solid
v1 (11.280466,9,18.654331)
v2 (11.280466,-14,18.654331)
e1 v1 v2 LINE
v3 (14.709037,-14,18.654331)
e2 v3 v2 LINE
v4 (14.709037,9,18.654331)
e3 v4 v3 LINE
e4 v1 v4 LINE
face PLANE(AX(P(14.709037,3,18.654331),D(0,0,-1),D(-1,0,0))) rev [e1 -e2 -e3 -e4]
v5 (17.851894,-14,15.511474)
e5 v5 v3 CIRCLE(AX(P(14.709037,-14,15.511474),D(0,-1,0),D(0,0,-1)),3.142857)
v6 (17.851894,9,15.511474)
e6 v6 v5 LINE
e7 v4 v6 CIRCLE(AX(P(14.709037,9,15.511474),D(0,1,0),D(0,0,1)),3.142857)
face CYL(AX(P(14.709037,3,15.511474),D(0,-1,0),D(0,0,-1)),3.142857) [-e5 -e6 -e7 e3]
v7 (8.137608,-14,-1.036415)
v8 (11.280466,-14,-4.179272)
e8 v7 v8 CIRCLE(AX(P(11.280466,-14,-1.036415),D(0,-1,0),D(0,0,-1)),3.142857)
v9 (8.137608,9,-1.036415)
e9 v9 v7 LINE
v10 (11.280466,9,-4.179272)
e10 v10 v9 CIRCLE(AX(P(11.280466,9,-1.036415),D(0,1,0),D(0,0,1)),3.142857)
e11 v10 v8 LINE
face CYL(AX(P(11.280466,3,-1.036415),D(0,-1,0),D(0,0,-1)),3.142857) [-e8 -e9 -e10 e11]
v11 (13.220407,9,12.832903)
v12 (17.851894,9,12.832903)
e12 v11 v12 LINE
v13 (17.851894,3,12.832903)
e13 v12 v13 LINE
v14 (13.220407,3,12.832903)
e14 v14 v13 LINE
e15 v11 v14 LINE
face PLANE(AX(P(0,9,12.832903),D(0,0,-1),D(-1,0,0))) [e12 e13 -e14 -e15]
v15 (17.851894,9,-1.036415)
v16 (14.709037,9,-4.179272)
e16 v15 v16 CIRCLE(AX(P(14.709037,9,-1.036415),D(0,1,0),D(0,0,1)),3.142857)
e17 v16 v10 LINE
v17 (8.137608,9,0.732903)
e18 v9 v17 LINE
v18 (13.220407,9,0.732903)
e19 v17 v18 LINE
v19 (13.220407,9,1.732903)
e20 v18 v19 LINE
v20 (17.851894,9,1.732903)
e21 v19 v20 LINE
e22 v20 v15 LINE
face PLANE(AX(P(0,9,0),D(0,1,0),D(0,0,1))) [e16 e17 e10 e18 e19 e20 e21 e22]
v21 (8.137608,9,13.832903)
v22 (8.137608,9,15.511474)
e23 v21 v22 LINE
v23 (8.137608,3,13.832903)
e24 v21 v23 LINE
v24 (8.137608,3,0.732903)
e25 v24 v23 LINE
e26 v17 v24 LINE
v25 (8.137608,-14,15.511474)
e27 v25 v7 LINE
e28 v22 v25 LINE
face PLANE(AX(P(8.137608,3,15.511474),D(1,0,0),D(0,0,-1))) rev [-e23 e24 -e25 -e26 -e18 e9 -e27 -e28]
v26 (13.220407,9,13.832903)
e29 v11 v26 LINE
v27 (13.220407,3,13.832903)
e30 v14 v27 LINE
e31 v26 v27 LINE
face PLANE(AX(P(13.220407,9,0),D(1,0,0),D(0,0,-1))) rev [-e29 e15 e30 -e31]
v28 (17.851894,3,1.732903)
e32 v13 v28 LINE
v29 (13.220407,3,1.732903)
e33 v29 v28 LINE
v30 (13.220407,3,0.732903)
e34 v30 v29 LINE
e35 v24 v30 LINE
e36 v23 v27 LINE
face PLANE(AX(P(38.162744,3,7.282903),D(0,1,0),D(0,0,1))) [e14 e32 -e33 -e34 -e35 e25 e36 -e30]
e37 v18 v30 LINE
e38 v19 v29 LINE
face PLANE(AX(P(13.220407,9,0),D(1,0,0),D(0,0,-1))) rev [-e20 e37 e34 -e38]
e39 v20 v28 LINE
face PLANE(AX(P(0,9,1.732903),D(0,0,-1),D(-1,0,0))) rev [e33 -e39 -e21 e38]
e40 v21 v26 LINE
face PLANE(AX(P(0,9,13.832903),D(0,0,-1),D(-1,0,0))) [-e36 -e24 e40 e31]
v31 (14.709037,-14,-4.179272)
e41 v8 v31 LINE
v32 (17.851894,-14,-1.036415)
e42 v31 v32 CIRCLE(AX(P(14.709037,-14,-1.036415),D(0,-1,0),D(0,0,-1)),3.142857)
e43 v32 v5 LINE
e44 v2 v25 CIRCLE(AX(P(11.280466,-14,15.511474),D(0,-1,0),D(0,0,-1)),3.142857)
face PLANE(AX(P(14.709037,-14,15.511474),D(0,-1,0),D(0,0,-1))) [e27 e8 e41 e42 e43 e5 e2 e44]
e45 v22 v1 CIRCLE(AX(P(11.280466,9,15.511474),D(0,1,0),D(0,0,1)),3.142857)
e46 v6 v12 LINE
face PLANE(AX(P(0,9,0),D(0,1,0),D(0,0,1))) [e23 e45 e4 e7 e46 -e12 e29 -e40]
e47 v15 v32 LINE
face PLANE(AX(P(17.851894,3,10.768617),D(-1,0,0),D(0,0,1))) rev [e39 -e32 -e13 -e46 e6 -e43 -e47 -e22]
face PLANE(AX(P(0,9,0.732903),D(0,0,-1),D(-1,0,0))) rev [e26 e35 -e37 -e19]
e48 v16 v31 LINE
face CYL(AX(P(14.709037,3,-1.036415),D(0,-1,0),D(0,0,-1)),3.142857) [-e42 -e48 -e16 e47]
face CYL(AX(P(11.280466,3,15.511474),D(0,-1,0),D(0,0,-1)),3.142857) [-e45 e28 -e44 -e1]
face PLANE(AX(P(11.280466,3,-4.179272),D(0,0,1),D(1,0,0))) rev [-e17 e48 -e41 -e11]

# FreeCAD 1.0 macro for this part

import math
import FreeCAD as App
import Part
import Sketcher
Q = App.Units.Quantity


def add_polygon(sketch, points):
    """Adds a closed chain of lines whose ends are joined by coincident constraints."""
    first, n = sketch.GeometryCount, len(points)
    for a, b in zip(points, points[1:] + points[:1]):
        sketch.addGeometry(Part.LineSegment(App.Vector(*a, 0), App.Vector(*b, 0)), False)
    for i in range(n):
        sketch.addConstraint(Sketcher.Constraint("Coincident", first + i, 2, first + (i + 1) % n, 1))

doc = App.newDocument("Part")
body = doc.addObject("PartDesign::Body", "Body")

sketch1 = body.newObject("Sketcher::SketchObject", "Sketch")
sketch1.AttachmentSupport = (doc.getObject("XZ_Plane"), [""])
sketch1.MapMode = "FlatFace"
sketch1.addGeometry([
    Part.LineSegment(App.Vector(17.851894, 10.768617, 0), App.Vector(35.117507, 10.768617, 0)),
    Part.ArcOfCircle(Part.Circle(App.Vector(38.162744, 7.282903, 0), App.Vector(0, 0, 1), 4.628571), math.radians(-131.141555), math.radians(131.141555)),
    Part.LineSegment(App.Vector(35.117507, 3.797188, 0), App.Vector(17.851894, 3.797188, 0)),
    Part.LineSegment(App.Vector(17.851894, 3.797188, 0), App.Vector(17.851894, -1.036415, 0)),
    Part.ArcOfCircle(Part.Circle(App.Vector(14.709037, -1.036415, 0), App.Vector(0, 0, 1), 3.142857), math.radians(-90), math.radians(0)),
    Part.LineSegment(App.Vector(14.709037, -4.179272, 0), App.Vector(11.280466, -4.179272, 0)),
    Part.ArcOfCircle(Part.Circle(App.Vector(11.280466, -1.036415, 0), App.Vector(0, 0, 1), 3.142857), math.radians(180), math.radians(270)),
    Part.LineSegment(App.Vector(8.137608, -1.036415, 0), App.Vector(8.137608, 15.511474, 0)),
    Part.ArcOfCircle(Part.Circle(App.Vector(11.280466, 15.511474, 0), App.Vector(0, 0, 1), 3.142857), math.radians(90), math.radians(180)),
    Part.LineSegment(App.Vector(11.280466, 18.654331, 0), App.Vector(14.709037, 18.654331, 0)),
    Part.ArcOfCircle(Part.Circle(App.Vector(14.709037, 15.511474, 0), App.Vector(0, 0, 1), 3.142857), math.radians(0), math.radians(90)),
    Part.LineSegment(App.Vector(17.851894, 15.511474, 0), App.Vector(17.851894, 10.768617, 0)),
    Part.Circle(App.Vector(38.162744, 7.282903, 0), App.Vector(0, 0, 1), 2.4),
], False)
sketch1.addConstraint([
    Sketcher.Constraint("Coincident", 0, 2, 1, 2),
    Sketcher.Constraint("Coincident", 1, 1, 2, 1),
    Sketcher.Constraint("Coincident", 2, 2, 3, 1),
    Sketcher.Constraint("Tangent", 3, 2, 4, 2),
    Sketcher.Constraint("Tangent", 4, 1, 5, 1),
    Sketcher.Constraint("Tangent", 5, 2, 6, 2),
    Sketcher.Constraint("Tangent", 6, 1, 7, 1),
    Sketcher.Constraint("Tangent", 7, 2, 8, 2),
    Sketcher.Constraint("Tangent", 8, 1, 9, 1),
    Sketcher.Constraint("Tangent", 9, 2, 10, 2),
    Sketcher.Constraint("Tangent", 10, 1, 11, 1),
    Sketcher.Constraint("Coincident", 11, 2, 0, 1),
    Sketcher.Constraint("Horizontal", 0),
    Sketcher.Constraint("Horizontal", 2),
    Sketcher.Constraint("Vertical", 3),
    Sketcher.Constraint("Horizontal", 5),
    Sketcher.Constraint("Vertical", 7),
    Sketcher.Constraint("Horizontal", 9),
    Sketcher.Constraint("Vertical", 11),
    Sketcher.Constraint("Coincident", 12, 3, 1, 3),
    Sketcher.Constraint("Equal", 4, 6),
    Sketcher.Constraint("Equal", 6, 8),
    Sketcher.Constraint("Equal", 8, 10),
    Sketcher.Constraint("Vertical", 4, 3, 10, 3),
    Sketcher.Constraint("Vertical", 0, 2, 1, 1),
    Sketcher.Constraint("Diameter", 12, Q("4.8 mm")),
    Sketcher.Constraint("Radius", 1, Q("4.628571 mm")),
    Sketcher.Constraint("Radius", 4, Q("3.142857 mm")),
    Sketcher.Constraint("DistanceX", 5, 2, 5, 1, Q("3.428571 mm")),
    Sketcher.Constraint("DistanceY", 7, 1, 7, 2, Q("16.547889 mm")),
    Sketcher.Constraint("DistanceX", 0, 1, 0, 2, Q("17.265612 mm")),
    Sketcher.Constraint("DistanceY", 3, 2, 3, 1, Q("4.833604 mm")),
    Sketcher.Constraint("DistanceY", 11, 2, 11, 1, Q("4.742857 mm")),
    Sketcher.Constraint("DistanceY", -1, 1, 1, 1, Q("3.797188 mm")),
    Sketcher.Constraint("DistanceX", -1, 1, 6, 1, Q("8.137608 mm")),
])
pad1 = body.newObject("PartDesign::Pad", "Pad")
pad1.Profile = sketch1
pad1.Length = 3
pad1.Reversed = True

sketch2 = body.newObject("Sketcher::SketchObject", "Sketch001")
sketch2.AttachmentSupport = (doc.getObject("XZ_Plane"), [""])
sketch2.MapMode = "FlatFace"
sketch2.AttachmentOffset = App.Placement(App.Vector(0, 0, -3), App.Rotation())
sketch2.addGeometry([
    Part.LineSegment(App.Vector(13.220407, 0.732903, 0), App.Vector(13.220407, 1.732903, 0)),
    Part.LineSegment(App.Vector(13.220407, 1.732903, 0), App.Vector(17.851894, 1.732903, 0)),
    Part.LineSegment(App.Vector(17.851894, 1.732903, 0), App.Vector(17.851894, -1.036415, 0)),
    Part.ArcOfCircle(Part.Circle(App.Vector(14.709037, -1.036415, 0), App.Vector(0, 0, 1), 3.142857), math.radians(-90), math.radians(0)),
    Part.LineSegment(App.Vector(14.709037, -4.179272, 0), App.Vector(11.280466, -4.179272, 0)),
    Part.ArcOfCircle(Part.Circle(App.Vector(11.280466, -1.036415, 0), App.Vector(0, 0, 1), 3.142857), math.radians(180), math.radians(270)),
    Part.LineSegment(App.Vector(8.137608, -1.036415, 0), App.Vector(8.137608, 0.732903, 0)),
    Part.LineSegment(App.Vector(8.137608, 0.732903, 0), App.Vector(13.220407, 0.732903, 0)),
    Part.LineSegment(App.Vector(17.851894, 12.832903, 0), App.Vector(13.220407, 12.832903, 0)),
    Part.LineSegment(App.Vector(13.220407, 12.832903, 0), App.Vector(13.220407, 13.832903, 0)),
    Part.LineSegment(App.Vector(13.220407, 13.832903, 0), App.Vector(8.137608, 13.832903, 0)),
    Part.LineSegment(App.Vector(8.137608, 13.832903, 0), App.Vector(8.137608, 15.511474, 0)),
    Part.ArcOfCircle(Part.Circle(App.Vector(11.280466, 15.511474, 0), App.Vector(0, 0, 1), 3.142857), math.radians(90), math.radians(180)),
    Part.LineSegment(App.Vector(11.280466, 18.654331, 0), App.Vector(14.709037, 18.654331, 0)),
    Part.ArcOfCircle(Part.Circle(App.Vector(14.709037, 15.511474, 0), App.Vector(0, 0, 1), 3.142857), math.radians(0), math.radians(90)),
    Part.LineSegment(App.Vector(17.851894, 15.511474, 0), App.Vector(17.851894, 12.832903, 0)),
], False)
sketch2.addConstraint([
    Sketcher.Constraint("Coincident", 0, 2, 1, 1),
    Sketcher.Constraint("Coincident", 1, 2, 2, 1),
    Sketcher.Constraint("Tangent", 2, 2, 3, 2),
    Sketcher.Constraint("Tangent", 3, 1, 4, 1),
    Sketcher.Constraint("Tangent", 4, 2, 5, 2),
    Sketcher.Constraint("Tangent", 5, 1, 6, 1),
    Sketcher.Constraint("Coincident", 6, 2, 7, 1),
    Sketcher.Constraint("Coincident", 7, 2, 0, 1),
    Sketcher.Constraint("Coincident", 8, 2, 9, 1),
    Sketcher.Constraint("Coincident", 9, 2, 10, 1),
    Sketcher.Constraint("Coincident", 10, 2, 11, 1),
    Sketcher.Constraint("Tangent", 11, 2, 12, 2),
    Sketcher.Constraint("Tangent", 12, 1, 13, 1),
    Sketcher.Constraint("Tangent", 13, 2, 14, 2),
    Sketcher.Constraint("Tangent", 14, 1, 15, 1),
    Sketcher.Constraint("Coincident", 15, 2, 8, 1),
    Sketcher.Constraint("Vertical", 0),
    Sketcher.Constraint("Horizontal", 1),
    Sketcher.Constraint("Vertical", 2),
    Sketcher.Constraint("Horizontal", 4),
    Sketcher.Constraint("Vertical", 6),
    Sketcher.Constraint("Horizontal", 7),
    Sketcher.Constraint("Horizontal", 8),
    Sketcher.Constraint("Vertical", 9),
    Sketcher.Constraint("Horizontal", 10),
    Sketcher.Constraint("Vertical", 11),
    Sketcher.Constraint("Horizontal", 13),
    Sketcher.Constraint("Vertical", 15),
    Sketcher.Constraint("Equal", 3, 5),
    Sketcher.Constraint("Equal", 5, 12),
    Sketcher.Constraint("Equal", 12, 14),
    Sketcher.Constraint("Vertical", 5, 3, 12, 3),
    Sketcher.Constraint("Vertical", 3, 3, 14, 3),
    Sketcher.Constraint("Vertical", 7, 2, 8, 2),
    Sketcher.Constraint("Equal", 0, 9),
    Sketcher.Constraint("DistanceY", 0, 1, 0, 2, Q("1 mm")),
    Sketcher.Constraint("DistanceY", 0, 2, 8, 2, Q("11.1 mm")),
    Sketcher.Constraint("DistanceX", 7, 1, 7, 2, Q("5.082799 mm")),
    Sketcher.Constraint("Radius", 3, Q("3.142857 mm")),
    Sketcher.Constraint("DistanceX", 4, 2, 4, 1, Q("3.428571 mm")),
    Sketcher.Constraint("DistanceY", 11, 1, 11, 2, Q("1.678571 mm")),
    Sketcher.Constraint("DistanceY", 2, 2, 2, 1, Q("2.769318 mm")),
    Sketcher.Constraint("DistanceX", -1, 1, 5, 1, Q("8.137608 mm")),
    Sketcher.Constraint("DistanceY", -1, 1, 12, 1, Q("18.654331 mm")),
])
pad2 = body.newObject("PartDesign::Pad", "Pad001")
pad2.Profile = sketch2
pad2.Length = 6
pad2.Reversed = True

sketch3 = body.newObject("Sketcher::SketchObject", "Sketch002")
sketch3.AttachmentSupport = (doc.getObject("XZ_Plane"), [""])
sketch3.MapMode = "FlatFace"
sketch3.AttachmentOffset = App.Placement(App.Vector(0, 0, -3), App.Rotation())
add_polygon(sketch3, [(17.851894, -64.354823), (17.851894, 78.920628), (154.155917, 78.920628), (154.155917, -64.354823)])
sketch3.addConstraint([
    Sketcher.Constraint("Vertical", 0),
    Sketcher.Constraint("Horizontal", 1),
    Sketcher.Constraint("Vertical", 2),
    Sketcher.Constraint("Horizontal", 3),
    Sketcher.Constraint("DistanceY", 0, 1, 0, 2, Q("143.275452 mm")),
    Sketcher.Constraint("DistanceX", 1, 1, 1, 2, Q("136.304023 mm")),
    Sketcher.Constraint("DistanceY", -1, 1, 0, 2, Q("78.920628 mm")),
    Sketcher.Constraint("DistanceX", -1, 1, 0, 2, Q("17.851894 mm")),
])
pocket1 = body.newObject("PartDesign::Pocket", "Pocket")
pocket1.Profile = sketch3
pocket1.Type = "ThroughAll"
pocket1.Midplane = True

sketch4 = body.newObject("Sketcher::SketchObject", "Sketch003")
sketch4.AttachmentSupport = (doc.getObject("XZ_Plane"), [""])
sketch4.MapMode = "FlatFace"
sketch4.AttachmentOffset = App.Placement(App.Vector(0, 0, 14), App.Rotation())
sketch4.addGeometry([
    Part.LineSegment(App.Vector(17.851894, -1.036415, 0), App.Vector(17.851894, 15.511474, 0)),
    Part.ArcOfCircle(Part.Circle(App.Vector(14.709037, 15.511474, 0), App.Vector(0, 0, 1), 3.142857), math.radians(0), math.radians(90)),
    Part.LineSegment(App.Vector(14.709037, 18.654331, 0), App.Vector(11.280466, 18.654331, 0)),
    Part.ArcOfCircle(Part.Circle(App.Vector(11.280466, 15.511474, 0), App.Vector(0, 0, 1), 3.142857), math.radians(90), math.radians(180)),
    Part.LineSegment(App.Vector(8.137608, 15.511474, 0), App.Vector(8.137608, -1.036415, 0)),
    Part.ArcOfCircle(Part.Circle(App.Vector(11.280466, -1.036415, 0), App.Vector(0, 0, 1), 3.142857), math.radians(180), math.radians(270)),
    Part.LineSegment(App.Vector(11.280466, -4.179272, 0), App.Vector(14.709037, -4.179272, 0)),
    Part.ArcOfCircle(Part.Circle(App.Vector(14.709037, -1.036415, 0), App.Vector(0, 0, 1), 3.142857), math.radians(-90), math.radians(0)),
], False)
sketch4.addConstraint([
    Sketcher.Constraint("Tangent", 0, 2, 1, 1),
    Sketcher.Constraint("Tangent", 1, 2, 2, 1),
    Sketcher.Constraint("Tangent", 2, 2, 3, 1),
    Sketcher.Constraint("Tangent", 3, 2, 4, 1),
    Sketcher.Constraint("Tangent", 4, 2, 5, 1),
    Sketcher.Constraint("Tangent", 5, 2, 6, 1),
    Sketcher.Constraint("Tangent", 6, 2, 7, 1),
    Sketcher.Constraint("Tangent", 7, 2, 0, 1),
    Sketcher.Constraint("Vertical", 0),
    Sketcher.Constraint("Horizontal", 2),
    Sketcher.Constraint("Vertical", 4),
    Sketcher.Constraint("Horizontal", 6),
    Sketcher.Constraint("Equal", 1, 3),
    Sketcher.Constraint("Equal", 3, 5),
    Sketcher.Constraint("Equal", 5, 7),
    Sketcher.Constraint("Radius", 1, Q("3.142857 mm")),
    Sketcher.Constraint("DistanceX", 2, 2, 2, 1, Q("3.428571 mm")),
    Sketcher.Constraint("DistanceY", 0, 1, 0, 2, Q("16.547889 mm")),
    Sketcher.Constraint("DistanceY", -1, 1, 1, 2, Q("18.654331 mm")),
    Sketcher.Constraint("DistanceX", -1, 1, 3, 2, Q("8.137608 mm")),
])
pad3 = body.newObject("PartDesign::Pad", "Pad002")
pad3.Profile = sketch4
pad3.Length = 14
pad3.Reversed = True

doc.recompute()
